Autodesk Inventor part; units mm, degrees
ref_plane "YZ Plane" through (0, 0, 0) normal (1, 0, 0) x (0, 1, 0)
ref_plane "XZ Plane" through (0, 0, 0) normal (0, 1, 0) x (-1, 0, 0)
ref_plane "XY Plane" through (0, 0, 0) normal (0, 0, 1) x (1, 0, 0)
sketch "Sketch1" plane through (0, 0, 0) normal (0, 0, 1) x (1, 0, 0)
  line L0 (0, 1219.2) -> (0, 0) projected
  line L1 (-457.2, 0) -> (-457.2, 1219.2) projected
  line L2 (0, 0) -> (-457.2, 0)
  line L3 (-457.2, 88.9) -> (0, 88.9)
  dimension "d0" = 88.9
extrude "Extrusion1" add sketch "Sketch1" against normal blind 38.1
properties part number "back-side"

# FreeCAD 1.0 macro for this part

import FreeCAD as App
import Part
import Sketcher
from FreeCAD import Vector
Q = App.Units.Quantity

doc = App.newDocument("Part")
body = doc.addObject("PartDesign::Body", "Body")

sketch1 = doc.addObject("Sketcher::SketchObject", "Sketch")
body.addObject(sketch1)
sketch1.AttachmentSupport = (doc.XY_Plane, [""])
sketch1.MapMode = "FlatFace"
sketch1.addGeometry([
    Part.LineSegment(Vector(0, 0, 0), Vector(0, 89, 0)),
    Part.LineSegment(Vector(0, 89, 0), Vector(-457, 89, 0)),
    Part.LineSegment(Vector(-457, 89, 0), Vector(-457, 0, 0)),
    Part.LineSegment(Vector(-457, 0, 0), Vector(0, 0, 0)),
], False)
sketch1.addConstraint([
    Sketcher.Constraint("Coincident", 0, 2, 1, 1),
    Sketcher.Constraint("Coincident", 1, 2, 2, 1),
    Sketcher.Constraint("Coincident", 2, 2, 3, 1),
    Sketcher.Constraint("Coincident", 3, 2, 0, 1),
    Sketcher.Constraint("Vertical", 0),
    Sketcher.Constraint("Horizontal", 1),
    Sketcher.Constraint("Vertical", 2),
    Sketcher.Constraint("Horizontal", 3),
    Sketcher.Constraint("Coincident", 3, 2, -1, 1),
    Sketcher.Constraint("DistanceY", 0, 1, 0, 2, Q("3.5 in")),
    Sketcher.Constraint("DistanceX", 1, 2, 1, 1, Q("18 in")),
])
pad1 = doc.addObject("PartDesign::Pad", "Pad")
body.addObject(pad1)
pad1.Profile = sketch1
pad1.Length = Q("1.5 in")
pad1.Reversed = True

doc.recompute()
